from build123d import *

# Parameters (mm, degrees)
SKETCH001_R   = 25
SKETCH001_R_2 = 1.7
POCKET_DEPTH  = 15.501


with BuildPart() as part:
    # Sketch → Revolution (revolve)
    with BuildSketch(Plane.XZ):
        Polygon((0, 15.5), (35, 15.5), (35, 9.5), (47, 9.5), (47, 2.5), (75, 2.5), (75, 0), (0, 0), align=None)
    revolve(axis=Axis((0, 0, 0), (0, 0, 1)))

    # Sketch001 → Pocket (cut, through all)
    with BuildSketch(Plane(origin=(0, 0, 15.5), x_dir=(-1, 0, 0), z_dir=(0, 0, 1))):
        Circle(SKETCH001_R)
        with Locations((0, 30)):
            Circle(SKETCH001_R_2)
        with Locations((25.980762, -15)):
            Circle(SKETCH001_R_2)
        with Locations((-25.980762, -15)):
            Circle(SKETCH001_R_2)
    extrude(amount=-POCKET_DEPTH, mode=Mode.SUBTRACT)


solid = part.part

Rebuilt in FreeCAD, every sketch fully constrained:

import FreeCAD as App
import Part
import Sketcher
from FreeCAD import Vector

doc = App.newDocument("Part")
params = doc.addObject("Spreadsheet::Sheet", "Params")
for row, (alias, value) in enumerate([
    ("sketch1_width", "35 mm"),
    ("sketch1_width2", "75 mm"),
    ("sketch1_width3", "28 mm"),
    ("sketch1_height", "7 mm"),
    ("sketch1_height2", "6 mm"),
    ("revolution_angle", "360 deg"),
    ("sketch2_diameter", "50 mm"),
    ("sketch2_diameter2", "3.4 mm"),
], start=1):
    params.set(f"A{row}", alias)
    params.set(f"B{row}", "=" + value)
    params.setAlias(f"B{row}", alias)

body = doc.addObject("PartDesign::Body", "Body")

# Sketch on XZ plane
sketch1 = body.newObject("Sketcher::SketchObject", "Sketch")
sketch1.AttachmentSupport = (doc.getObject("XZ_Plane"), [""])
sketch1.MapMode = "FlatFace"
sketch1.addGeometry([
    Part.LineSegment(Vector(35, 15.5, 0), Vector(0, 15.5, 0)),  # 0
    Part.LineSegment(Vector(0, 15.5, 0), Vector(0, 0, 0)),  # 1
    Part.LineSegment(Vector(0, 0, 0), Vector(75, 0, 0)),  # 2
    Part.LineSegment(Vector(75, 0, 0), Vector(75, 2.5, 0)),  # 3
    Part.LineSegment(Vector(75, 2.5, 0), Vector(47, 2.5, 0)),  # 4
    Part.LineSegment(Vector(47, 2.5, 0), Vector(47, 9.5, 0)),  # 5
    Part.LineSegment(Vector(47, 9.5, 0), Vector(35, 9.5, 0)),  # 6
    Part.LineSegment(Vector(35, 9.5, 0), Vector(35, 15.5, 0)),  # 7
], False)
sketch1.addConstraint([
    Sketcher.Constraint("Coincident", 0, 2, 1, 1),
    Sketcher.Constraint("Coincident", 1, 2, 2, 1),
    Sketcher.Constraint("Coincident", 2, 2, 3, 1),
    Sketcher.Constraint("Coincident", 3, 2, 4, 1),
    Sketcher.Constraint("Coincident", 4, 2, 5, 1),
    Sketcher.Constraint("Coincident", 5, 2, 6, 1),
    Sketcher.Constraint("Coincident", 6, 2, 7, 1),
    Sketcher.Constraint("Coincident", 7, 2, 0, 1),
    Sketcher.Constraint("Horizontal", 0),
    Sketcher.Constraint("Vertical", 1),
    Sketcher.Constraint("Horizontal", 2),
    Sketcher.Constraint("Vertical", 3),
    Sketcher.Constraint("Horizontal", 4),
    Sketcher.Constraint("Vertical", 5),
    Sketcher.Constraint("Horizontal", 6),
    Sketcher.Constraint("Vertical", 7),
    Sketcher.Constraint("Coincident", 1, 2, -1, 1),
    Sketcher.Constraint("DistanceX", 0, 2, 0, 1, 35.0),
    Sketcher.Constraint("DistanceX", 2, 1, 2, 2, 75.0),
    Sketcher.Constraint("DistanceX", 4, 2, 4, 1, 28.0),
    Sketcher.Constraint("DistanceY", 5, 1, 5, 2, 7.0),
    Sketcher.Constraint("DistanceY", 7, 1, 7, 2, 6.0),
    Sketcher.Constraint("DistanceY", 1, 2, 1, 1, 15.5),
])
sketch1.setExpression("Constraints[17]", "Params.sketch1_width")
sketch1.setExpression("Constraints[18]", "Params.sketch1_width2")
sketch1.setExpression("Constraints[19]", "Params.sketch1_width3")
sketch1.setExpression("Constraints[20]", "Params.sketch1_height")
sketch1.setExpression("Constraints[21]", "Params.sketch1_height2")
revolution = body.newObject("PartDesign::Revolution", "Revolution")
revolution.Profile = sketch1
revolution.ReferenceAxis = (sketch1, ["V_Axis"])
revolution.setExpression("Angle", "Params.revolution_angle")

# Sketch on XY plane
sketch2 = body.newObject("Sketcher::SketchObject", "Sketch001")
sketch2.AttachmentSupport = (doc.getObject("XY_Plane"), [""])
sketch2.MapMode = "FlatFace"
sketch2.AttachmentOffset = App.Placement(Vector(0, 0, 15.5), App.Rotation())
sketch2.addGeometry([
    Part.Circle(Vector(0, 0, 0), Vector(0, 0, 1), 25),
    Part.Circle(Vector(0, -30, 0), Vector(0, 0, 1), 1.7),
    Part.Circle(Vector(-25.980762, 15, 0), Vector(0, 0, 1), 1.7),
    Part.Circle(Vector(25.980762, 15, 0), Vector(0, 0, 1), 1.7),
], False)
sketch2.addConstraint([
    Sketcher.Constraint("Coincident", 0, 3, -1, 1),
    Sketcher.Constraint("Equal", 1, 2),
    Sketcher.Constraint("Equal", 2, 3),
    Sketcher.Constraint("Symmetric", 2, 3, 3, 3, -2),
    Sketcher.Constraint("PointOnObject", 1, 3, -2),
    Sketcher.Constraint("Diameter", 0, 50.0),
    Sketcher.Constraint("Diameter", 1, 3.4),
    Sketcher.Constraint("DistanceY", 1, 3, -1, 1, 30.0),
    Sketcher.Constraint("DistanceY", -1, 1, 2, 3, 15.0),
    Sketcher.Constraint("DistanceX", 2, 3, -1, 1, 25.980762),
])
sketch2.setExpression("Constraints[5]", "Params.sketch2_diameter")
sketch2.setExpression("Constraints[6]", "Params.sketch2_diameter2")
pocket1 = body.newObject("PartDesign::Pocket", "Pocket")
pocket1.Profile = sketch2
pocket1.Type = "ThroughAll"

doc.recompute()
